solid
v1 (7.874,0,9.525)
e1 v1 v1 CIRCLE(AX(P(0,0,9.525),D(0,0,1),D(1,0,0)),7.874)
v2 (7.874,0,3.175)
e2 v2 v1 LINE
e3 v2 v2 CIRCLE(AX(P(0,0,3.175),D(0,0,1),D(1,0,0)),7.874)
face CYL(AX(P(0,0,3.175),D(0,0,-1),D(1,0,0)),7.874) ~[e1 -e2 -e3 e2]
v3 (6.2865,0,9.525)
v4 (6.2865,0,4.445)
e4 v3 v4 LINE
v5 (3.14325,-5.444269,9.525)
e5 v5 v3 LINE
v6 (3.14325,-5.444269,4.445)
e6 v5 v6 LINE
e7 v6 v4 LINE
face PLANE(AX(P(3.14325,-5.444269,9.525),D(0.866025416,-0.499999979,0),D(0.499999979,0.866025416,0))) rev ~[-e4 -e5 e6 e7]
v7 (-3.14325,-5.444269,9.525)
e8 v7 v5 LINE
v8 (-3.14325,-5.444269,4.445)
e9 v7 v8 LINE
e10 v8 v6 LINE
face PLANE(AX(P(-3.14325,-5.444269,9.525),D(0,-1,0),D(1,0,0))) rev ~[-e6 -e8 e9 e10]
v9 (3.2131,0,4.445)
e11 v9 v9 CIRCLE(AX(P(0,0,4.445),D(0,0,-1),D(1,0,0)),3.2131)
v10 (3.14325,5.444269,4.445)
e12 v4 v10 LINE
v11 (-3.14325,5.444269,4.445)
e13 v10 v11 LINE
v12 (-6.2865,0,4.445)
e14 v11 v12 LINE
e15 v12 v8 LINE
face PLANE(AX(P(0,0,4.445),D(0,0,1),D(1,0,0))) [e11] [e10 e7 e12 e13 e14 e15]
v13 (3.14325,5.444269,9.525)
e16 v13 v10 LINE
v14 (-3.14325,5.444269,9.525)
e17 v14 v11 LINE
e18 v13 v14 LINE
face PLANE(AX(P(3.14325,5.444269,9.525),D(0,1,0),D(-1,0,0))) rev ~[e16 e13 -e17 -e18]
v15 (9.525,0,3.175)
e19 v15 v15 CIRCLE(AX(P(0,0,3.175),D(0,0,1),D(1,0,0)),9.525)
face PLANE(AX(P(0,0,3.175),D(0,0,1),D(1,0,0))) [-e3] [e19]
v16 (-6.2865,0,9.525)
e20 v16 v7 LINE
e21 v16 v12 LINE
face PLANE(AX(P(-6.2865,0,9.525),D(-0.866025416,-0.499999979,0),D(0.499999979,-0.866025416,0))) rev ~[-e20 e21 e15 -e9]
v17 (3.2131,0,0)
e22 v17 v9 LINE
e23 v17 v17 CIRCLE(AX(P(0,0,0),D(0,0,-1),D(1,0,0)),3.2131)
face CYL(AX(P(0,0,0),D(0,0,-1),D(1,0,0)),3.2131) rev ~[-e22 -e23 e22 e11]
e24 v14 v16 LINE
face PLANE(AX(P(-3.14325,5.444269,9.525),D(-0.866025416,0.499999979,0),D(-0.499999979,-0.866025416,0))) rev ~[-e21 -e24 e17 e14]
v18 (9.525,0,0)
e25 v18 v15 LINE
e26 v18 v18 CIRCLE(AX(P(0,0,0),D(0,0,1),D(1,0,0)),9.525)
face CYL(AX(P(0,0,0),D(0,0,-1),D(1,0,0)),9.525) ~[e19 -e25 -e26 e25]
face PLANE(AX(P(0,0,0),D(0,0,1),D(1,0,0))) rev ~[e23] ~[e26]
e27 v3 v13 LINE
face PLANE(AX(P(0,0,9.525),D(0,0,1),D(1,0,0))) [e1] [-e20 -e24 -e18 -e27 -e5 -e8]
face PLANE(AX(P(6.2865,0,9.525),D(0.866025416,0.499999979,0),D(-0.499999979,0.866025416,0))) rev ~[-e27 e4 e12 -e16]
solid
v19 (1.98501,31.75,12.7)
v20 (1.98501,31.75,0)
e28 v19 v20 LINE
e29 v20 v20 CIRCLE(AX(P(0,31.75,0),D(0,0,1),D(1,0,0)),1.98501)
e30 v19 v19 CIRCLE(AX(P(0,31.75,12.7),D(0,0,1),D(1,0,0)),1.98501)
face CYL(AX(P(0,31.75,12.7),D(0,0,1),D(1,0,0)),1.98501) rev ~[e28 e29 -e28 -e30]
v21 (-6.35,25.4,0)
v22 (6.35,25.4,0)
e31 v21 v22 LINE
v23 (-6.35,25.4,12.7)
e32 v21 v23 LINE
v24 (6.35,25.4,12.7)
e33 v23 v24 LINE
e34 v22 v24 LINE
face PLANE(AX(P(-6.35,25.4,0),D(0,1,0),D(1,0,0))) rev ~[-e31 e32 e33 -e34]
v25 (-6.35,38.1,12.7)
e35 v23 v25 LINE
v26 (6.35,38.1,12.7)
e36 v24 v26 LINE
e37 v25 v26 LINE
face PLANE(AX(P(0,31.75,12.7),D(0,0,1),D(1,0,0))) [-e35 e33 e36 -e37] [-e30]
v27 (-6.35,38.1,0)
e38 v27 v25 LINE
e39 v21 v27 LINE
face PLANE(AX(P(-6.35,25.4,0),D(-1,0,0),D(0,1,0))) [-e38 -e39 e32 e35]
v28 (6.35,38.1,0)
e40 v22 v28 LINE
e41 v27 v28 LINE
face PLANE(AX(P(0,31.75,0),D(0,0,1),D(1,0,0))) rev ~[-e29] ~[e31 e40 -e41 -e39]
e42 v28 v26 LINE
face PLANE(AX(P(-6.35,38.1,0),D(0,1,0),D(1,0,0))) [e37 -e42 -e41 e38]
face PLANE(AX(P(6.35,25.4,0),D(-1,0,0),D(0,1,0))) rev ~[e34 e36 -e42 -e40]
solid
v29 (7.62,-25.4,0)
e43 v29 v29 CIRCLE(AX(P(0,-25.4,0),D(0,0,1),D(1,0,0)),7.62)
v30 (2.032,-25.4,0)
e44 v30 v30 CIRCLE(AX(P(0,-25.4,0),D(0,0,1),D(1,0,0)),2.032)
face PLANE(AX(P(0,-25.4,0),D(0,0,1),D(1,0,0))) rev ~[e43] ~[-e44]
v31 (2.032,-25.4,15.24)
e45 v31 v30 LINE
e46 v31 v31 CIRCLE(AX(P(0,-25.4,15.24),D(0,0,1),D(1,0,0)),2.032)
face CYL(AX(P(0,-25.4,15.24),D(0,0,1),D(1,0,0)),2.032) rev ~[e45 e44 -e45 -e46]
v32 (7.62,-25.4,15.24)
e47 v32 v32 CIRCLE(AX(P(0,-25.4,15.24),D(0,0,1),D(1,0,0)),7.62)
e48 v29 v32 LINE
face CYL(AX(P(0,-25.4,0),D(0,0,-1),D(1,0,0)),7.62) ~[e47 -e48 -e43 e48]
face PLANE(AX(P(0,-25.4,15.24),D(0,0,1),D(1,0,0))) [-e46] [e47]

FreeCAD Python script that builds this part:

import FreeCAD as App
import Part
import Sketcher

V = App.Vector
Q = App.Units.Quantity

doc = App.newDocument("Part")
body = doc.addObject("PartDesign::Body", "Body")

sketch1 = doc.addObject("Sketcher::SketchObject", "Sketch")
body.addObject(sketch1)
sketch1.AttachmentSupport = (doc.XY_Plane, [""])
sketch1.MapMode = "FlatFace"
sketch1.addGeometry(Part.Circle(V(0, 0, 0), V(0, 0, 1), 10), False)
sketch1.addConstraint(Sketcher.Constraint("Coincident", 0, 3, -1, 1))
sketch1.addConstraint(Sketcher.Constraint("Diameter", 0, Q("0.75 in")))
pad1 = doc.addObject("PartDesign::Pad", "Pad")
body.addObject(pad1)
pad1.Profile = sketch1
pad1.Length = Q("0.125 in")

sketch2 = doc.addObject("Sketcher::SketchObject", "Sketch001")
body.addObject(sketch2)
sketch2.AttachmentSupport = (doc.XY_Plane, [""])
sketch2.MapMode = "FlatFace"
sketch2.AttachmentOffset = App.Placement(V(0, 0, 0.125 * 25.4), App.Rotation())
sketch2.addGeometry(Part.Circle(V(0, 0, 0), V(0, 0, 1), 8), False)
sketch2.addConstraint(Sketcher.Constraint("Coincident", 0, 3, -1, 1))
sketch2.addConstraint(Sketcher.Constraint("Diameter", 0, Q("0.62 in")))
pad2 = doc.addObject("PartDesign::Pad", "Pad001")
body.addObject(pad2)
pad2.Profile = sketch2
pad2.Length = Q("0.25 in")

sketch3 = doc.addObject("Sketcher::SketchObject", "Sketch002")
body.addObject(sketch3)
sketch3.AttachmentSupport = (doc.XY_Plane, [""])
sketch3.MapMode = "FlatFace"
sketch3.AttachmentOffset = App.Placement(V(0, 0, 0.375 * 25.4), App.Rotation())
sketch3.addGeometry(Part.LineSegment(V(6, 0, 0), V(3, 5, 0)), False)
sketch3.addGeometry(Part.LineSegment(V(3, 5, 0), V(-3, 5, 0)), False)
sketch3.addGeometry(Part.LineSegment(V(-3, 5, 0), V(-6, 0, 0)), False)
sketch3.addGeometry(Part.LineSegment(V(-6, 0, 0), V(-3, -5, 0)), False)
sketch3.addGeometry(Part.LineSegment(V(-3, -5, 0), V(3, -5, 0)), False)
sketch3.addGeometry(Part.LineSegment(V(3, -5, 0), V(6, 0, 0)), False)
sketch3.addConstraint(Sketcher.Constraint("Coincident", 0, 2, 1, 1))
sketch3.addConstraint(Sketcher.Constraint("Coincident", 1, 2, 2, 1))
sketch3.addConstraint(Sketcher.Constraint("Coincident", 2, 2, 3, 1))
sketch3.addConstraint(Sketcher.Constraint("Coincident", 3, 2, 4, 1))
sketch3.addConstraint(Sketcher.Constraint("Coincident", 4, 2, 5, 1))
sketch3.addConstraint(Sketcher.Constraint("Coincident", 5, 2, 0, 1))
sketch3.addConstraint(Sketcher.Constraint("Horizontal", 1))
sketch3.addConstraint(Sketcher.Constraint("Horizontal", 4))
sketch3.addConstraint(Sketcher.Constraint("Symmetric", 0, 2, 3, 2, -1, 1))
sketch3.addConstraint(Sketcher.Constraint("Symmetric", 2, 2, 5, 2, -1, 1))
sketch3.addConstraint(Sketcher.Constraint("PointOnObject", 2, 2, -1))
sketch3.addConstraint(Sketcher.Constraint("Parallel", 2, 5))
sketch3.addConstraint(Sketcher.Constraint("Vertical", 1, 2, 3, 2))
sketch3.addConstraint(Sketcher.Constraint("Angle", 0, Q("119.999999 deg")))
sketch3.addConstraint(Sketcher.Constraint("DistanceX", 1, 2, 1, 1, Q("0.2475 in")))
sketch3.addConstraint(Sketcher.Constraint("DistanceX", 2, 2, 5, 2, Q("0.495 in")))
pocket1 = doc.addObject("PartDesign::Pocket", "Pocket")
body.addObject(pocket1)
pocket1.Profile = sketch3
pocket1.Length = Q("0.2 in")

sketch4 = doc.addObject("Sketcher::SketchObject", "Sketch003")
body.addObject(sketch4)
sketch4.AttachmentSupport = (doc.XY_Plane, [""])
sketch4.MapMode = "FlatFace"
sketch4.addGeometry(Part.Circle(V(0, 0, 0), V(0, 0, 1), 3.2), False)
sketch4.addConstraint(Sketcher.Constraint("Coincident", 0, 3, -1, 1))
sketch4.addConstraint(Sketcher.Constraint("Diameter", 0, Q("0.253 in")))
pocket2 = doc.addObject("PartDesign::Pocket", "Pocket001")
body.addObject(pocket2)
pocket2.Profile = sketch4
pocket2.Type = "ThroughAll"
pocket2.Reversed = True
body2 = doc.addObject("PartDesign::Body", "Body001")

sketch5 = doc.addObject("Sketcher::SketchObject", "Sketch004")
body2.addObject(sketch5)
sketch5.AttachmentSupport = (doc.getObject("XY_Plane001"), [""])
sketch5.MapMode = "FlatFace"
sketch5.addGeometry(Part.LineSegment(V(-6, 38, 0), V(-6, 25, 0)), False)
sketch5.addGeometry(Part.LineSegment(V(-6, 25, 0), V(6, 25, 0)), False)
sketch5.addGeometry(Part.LineSegment(V(6, 25, 0), V(6, 38, 0)), False)
sketch5.addGeometry(Part.LineSegment(V(6, 38, 0), V(-6, 38, 0)), False)
sketch5.addConstraint(Sketcher.Constraint("Coincident", 0, 2, 1, 1))
sketch5.addConstraint(Sketcher.Constraint("Coincident", 1, 2, 2, 1))
sketch5.addConstraint(Sketcher.Constraint("Coincident", 2, 2, 3, 1))
sketch5.addConstraint(Sketcher.Constraint("Coincident", 3, 2, 0, 1))
sketch5.addConstraint(Sketcher.Constraint("Vertical", 0))
sketch5.addConstraint(Sketcher.Constraint("Horizontal", 1))
sketch5.addConstraint(Sketcher.Constraint("Vertical", 2))
sketch5.addConstraint(Sketcher.Constraint("Horizontal", 3))
sketch5.addConstraint(Sketcher.Constraint("Equal", 3, 0))
sketch5.addConstraint(Sketcher.Constraint("DistanceX", 1, 1, 1, 2, Q("0.5 in")))
sketch5.addConstraint(Sketcher.Constraint("DistanceY", -1, 1, 0, 2, Q("1 in")))
sketch5.addConstraint(Sketcher.Constraint("DistanceX", 0, 2, -1, 1, Q("0.25 in")))
pad3 = doc.addObject("PartDesign::Pad", "Pad002")
body2.addObject(pad3)
pad3.Profile = sketch5
pad3.Length = Q("0.5 in")

sketch6 = doc.addObject("Sketcher::SketchObject", "Sketch005")
body2.addObject(sketch6)
sketch6.AttachmentSupport = (doc.getObject("XY_Plane001"), [""])
sketch6.MapMode = "FlatFace"
sketch6.AttachmentOffset = App.Placement(V(0, 0, 0.5 * 25.4), App.Rotation())
sketch6.addGeometry(Part.Circle(V(0, 31.8, 0), V(0, 0, 1), 2), False)
sketch6.addConstraint(Sketcher.Constraint("PointOnObject", 0, 3, -2))
sketch6.addConstraint(Sketcher.Constraint("Diameter", 0, Q("0.1563 in")))
sketch6.addConstraint(Sketcher.Constraint("DistanceY", -1, 1, 0, 3, Q("1.25 in")))
pocket3 = doc.addObject("PartDesign::Pocket", "Pocket002")
body2.addObject(pocket3)
pocket3.Profile = sketch6
pocket3.Type = "ThroughAll"
body3 = doc.addObject("PartDesign::Body", "Body002")

sketch7 = doc.addObject("Sketcher::SketchObject", "Sketch006")
body3.addObject(sketch7)
sketch7.AttachmentSupport = (doc.getObject("XY_Plane002"), [""])
sketch7.MapMode = "FlatFace"
sketch7.addGeometry(Part.Circle(V(0, -25, 0), V(0, 0, 1), 8), False)
sketch7.addConstraint(Sketcher.Constraint("PointOnObject", 0, 3, -2))
sketch7.addConstraint(Sketcher.Constraint("Diameter", 0, Q("0.6 in")))
sketch7.addConstraint(Sketcher.Constraint("DistanceY", 0, 3, -1, 1, Q("1 in")))
pad4 = doc.addObject("PartDesign::Pad", "Pad003")
body3.addObject(pad4)
pad4.Profile = sketch7
pad4.Length = Q("0.6 in")

sketch8 = doc.addObject("Sketcher::SketchObject", "Sketch007")
body3.addObject(sketch8)
sketch8.AttachmentSupport = (doc.getObject("XY_Plane002"), [""])
sketch8.MapMode = "FlatFace"
sketch8.AttachmentOffset = App.Placement(V(0, 0, 0.6 * 25.4), App.Rotation())
sketch8.addGeometry(Part.Circle(V(0, -25.4, 0), V(0, 0, 1), 2), False)
sketch8.addConstraint(Sketcher.Constraint("PointOnObject", 0, 3, -2))
sketch8.addConstraint(Sketcher.Constraint("Diameter", 0, Q("0.16 in")))
sketch8.addConstraint(Sketcher.Constraint("DistanceY", 0, 3, -1, 1, Q("1 in")))
pocket4 = doc.addObject("PartDesign::Pocket", "Pocket003")
body3.addObject(pocket4)
pocket4.Profile = sketch8
pocket4.Type = "ThroughAll"

doc.recompute()
